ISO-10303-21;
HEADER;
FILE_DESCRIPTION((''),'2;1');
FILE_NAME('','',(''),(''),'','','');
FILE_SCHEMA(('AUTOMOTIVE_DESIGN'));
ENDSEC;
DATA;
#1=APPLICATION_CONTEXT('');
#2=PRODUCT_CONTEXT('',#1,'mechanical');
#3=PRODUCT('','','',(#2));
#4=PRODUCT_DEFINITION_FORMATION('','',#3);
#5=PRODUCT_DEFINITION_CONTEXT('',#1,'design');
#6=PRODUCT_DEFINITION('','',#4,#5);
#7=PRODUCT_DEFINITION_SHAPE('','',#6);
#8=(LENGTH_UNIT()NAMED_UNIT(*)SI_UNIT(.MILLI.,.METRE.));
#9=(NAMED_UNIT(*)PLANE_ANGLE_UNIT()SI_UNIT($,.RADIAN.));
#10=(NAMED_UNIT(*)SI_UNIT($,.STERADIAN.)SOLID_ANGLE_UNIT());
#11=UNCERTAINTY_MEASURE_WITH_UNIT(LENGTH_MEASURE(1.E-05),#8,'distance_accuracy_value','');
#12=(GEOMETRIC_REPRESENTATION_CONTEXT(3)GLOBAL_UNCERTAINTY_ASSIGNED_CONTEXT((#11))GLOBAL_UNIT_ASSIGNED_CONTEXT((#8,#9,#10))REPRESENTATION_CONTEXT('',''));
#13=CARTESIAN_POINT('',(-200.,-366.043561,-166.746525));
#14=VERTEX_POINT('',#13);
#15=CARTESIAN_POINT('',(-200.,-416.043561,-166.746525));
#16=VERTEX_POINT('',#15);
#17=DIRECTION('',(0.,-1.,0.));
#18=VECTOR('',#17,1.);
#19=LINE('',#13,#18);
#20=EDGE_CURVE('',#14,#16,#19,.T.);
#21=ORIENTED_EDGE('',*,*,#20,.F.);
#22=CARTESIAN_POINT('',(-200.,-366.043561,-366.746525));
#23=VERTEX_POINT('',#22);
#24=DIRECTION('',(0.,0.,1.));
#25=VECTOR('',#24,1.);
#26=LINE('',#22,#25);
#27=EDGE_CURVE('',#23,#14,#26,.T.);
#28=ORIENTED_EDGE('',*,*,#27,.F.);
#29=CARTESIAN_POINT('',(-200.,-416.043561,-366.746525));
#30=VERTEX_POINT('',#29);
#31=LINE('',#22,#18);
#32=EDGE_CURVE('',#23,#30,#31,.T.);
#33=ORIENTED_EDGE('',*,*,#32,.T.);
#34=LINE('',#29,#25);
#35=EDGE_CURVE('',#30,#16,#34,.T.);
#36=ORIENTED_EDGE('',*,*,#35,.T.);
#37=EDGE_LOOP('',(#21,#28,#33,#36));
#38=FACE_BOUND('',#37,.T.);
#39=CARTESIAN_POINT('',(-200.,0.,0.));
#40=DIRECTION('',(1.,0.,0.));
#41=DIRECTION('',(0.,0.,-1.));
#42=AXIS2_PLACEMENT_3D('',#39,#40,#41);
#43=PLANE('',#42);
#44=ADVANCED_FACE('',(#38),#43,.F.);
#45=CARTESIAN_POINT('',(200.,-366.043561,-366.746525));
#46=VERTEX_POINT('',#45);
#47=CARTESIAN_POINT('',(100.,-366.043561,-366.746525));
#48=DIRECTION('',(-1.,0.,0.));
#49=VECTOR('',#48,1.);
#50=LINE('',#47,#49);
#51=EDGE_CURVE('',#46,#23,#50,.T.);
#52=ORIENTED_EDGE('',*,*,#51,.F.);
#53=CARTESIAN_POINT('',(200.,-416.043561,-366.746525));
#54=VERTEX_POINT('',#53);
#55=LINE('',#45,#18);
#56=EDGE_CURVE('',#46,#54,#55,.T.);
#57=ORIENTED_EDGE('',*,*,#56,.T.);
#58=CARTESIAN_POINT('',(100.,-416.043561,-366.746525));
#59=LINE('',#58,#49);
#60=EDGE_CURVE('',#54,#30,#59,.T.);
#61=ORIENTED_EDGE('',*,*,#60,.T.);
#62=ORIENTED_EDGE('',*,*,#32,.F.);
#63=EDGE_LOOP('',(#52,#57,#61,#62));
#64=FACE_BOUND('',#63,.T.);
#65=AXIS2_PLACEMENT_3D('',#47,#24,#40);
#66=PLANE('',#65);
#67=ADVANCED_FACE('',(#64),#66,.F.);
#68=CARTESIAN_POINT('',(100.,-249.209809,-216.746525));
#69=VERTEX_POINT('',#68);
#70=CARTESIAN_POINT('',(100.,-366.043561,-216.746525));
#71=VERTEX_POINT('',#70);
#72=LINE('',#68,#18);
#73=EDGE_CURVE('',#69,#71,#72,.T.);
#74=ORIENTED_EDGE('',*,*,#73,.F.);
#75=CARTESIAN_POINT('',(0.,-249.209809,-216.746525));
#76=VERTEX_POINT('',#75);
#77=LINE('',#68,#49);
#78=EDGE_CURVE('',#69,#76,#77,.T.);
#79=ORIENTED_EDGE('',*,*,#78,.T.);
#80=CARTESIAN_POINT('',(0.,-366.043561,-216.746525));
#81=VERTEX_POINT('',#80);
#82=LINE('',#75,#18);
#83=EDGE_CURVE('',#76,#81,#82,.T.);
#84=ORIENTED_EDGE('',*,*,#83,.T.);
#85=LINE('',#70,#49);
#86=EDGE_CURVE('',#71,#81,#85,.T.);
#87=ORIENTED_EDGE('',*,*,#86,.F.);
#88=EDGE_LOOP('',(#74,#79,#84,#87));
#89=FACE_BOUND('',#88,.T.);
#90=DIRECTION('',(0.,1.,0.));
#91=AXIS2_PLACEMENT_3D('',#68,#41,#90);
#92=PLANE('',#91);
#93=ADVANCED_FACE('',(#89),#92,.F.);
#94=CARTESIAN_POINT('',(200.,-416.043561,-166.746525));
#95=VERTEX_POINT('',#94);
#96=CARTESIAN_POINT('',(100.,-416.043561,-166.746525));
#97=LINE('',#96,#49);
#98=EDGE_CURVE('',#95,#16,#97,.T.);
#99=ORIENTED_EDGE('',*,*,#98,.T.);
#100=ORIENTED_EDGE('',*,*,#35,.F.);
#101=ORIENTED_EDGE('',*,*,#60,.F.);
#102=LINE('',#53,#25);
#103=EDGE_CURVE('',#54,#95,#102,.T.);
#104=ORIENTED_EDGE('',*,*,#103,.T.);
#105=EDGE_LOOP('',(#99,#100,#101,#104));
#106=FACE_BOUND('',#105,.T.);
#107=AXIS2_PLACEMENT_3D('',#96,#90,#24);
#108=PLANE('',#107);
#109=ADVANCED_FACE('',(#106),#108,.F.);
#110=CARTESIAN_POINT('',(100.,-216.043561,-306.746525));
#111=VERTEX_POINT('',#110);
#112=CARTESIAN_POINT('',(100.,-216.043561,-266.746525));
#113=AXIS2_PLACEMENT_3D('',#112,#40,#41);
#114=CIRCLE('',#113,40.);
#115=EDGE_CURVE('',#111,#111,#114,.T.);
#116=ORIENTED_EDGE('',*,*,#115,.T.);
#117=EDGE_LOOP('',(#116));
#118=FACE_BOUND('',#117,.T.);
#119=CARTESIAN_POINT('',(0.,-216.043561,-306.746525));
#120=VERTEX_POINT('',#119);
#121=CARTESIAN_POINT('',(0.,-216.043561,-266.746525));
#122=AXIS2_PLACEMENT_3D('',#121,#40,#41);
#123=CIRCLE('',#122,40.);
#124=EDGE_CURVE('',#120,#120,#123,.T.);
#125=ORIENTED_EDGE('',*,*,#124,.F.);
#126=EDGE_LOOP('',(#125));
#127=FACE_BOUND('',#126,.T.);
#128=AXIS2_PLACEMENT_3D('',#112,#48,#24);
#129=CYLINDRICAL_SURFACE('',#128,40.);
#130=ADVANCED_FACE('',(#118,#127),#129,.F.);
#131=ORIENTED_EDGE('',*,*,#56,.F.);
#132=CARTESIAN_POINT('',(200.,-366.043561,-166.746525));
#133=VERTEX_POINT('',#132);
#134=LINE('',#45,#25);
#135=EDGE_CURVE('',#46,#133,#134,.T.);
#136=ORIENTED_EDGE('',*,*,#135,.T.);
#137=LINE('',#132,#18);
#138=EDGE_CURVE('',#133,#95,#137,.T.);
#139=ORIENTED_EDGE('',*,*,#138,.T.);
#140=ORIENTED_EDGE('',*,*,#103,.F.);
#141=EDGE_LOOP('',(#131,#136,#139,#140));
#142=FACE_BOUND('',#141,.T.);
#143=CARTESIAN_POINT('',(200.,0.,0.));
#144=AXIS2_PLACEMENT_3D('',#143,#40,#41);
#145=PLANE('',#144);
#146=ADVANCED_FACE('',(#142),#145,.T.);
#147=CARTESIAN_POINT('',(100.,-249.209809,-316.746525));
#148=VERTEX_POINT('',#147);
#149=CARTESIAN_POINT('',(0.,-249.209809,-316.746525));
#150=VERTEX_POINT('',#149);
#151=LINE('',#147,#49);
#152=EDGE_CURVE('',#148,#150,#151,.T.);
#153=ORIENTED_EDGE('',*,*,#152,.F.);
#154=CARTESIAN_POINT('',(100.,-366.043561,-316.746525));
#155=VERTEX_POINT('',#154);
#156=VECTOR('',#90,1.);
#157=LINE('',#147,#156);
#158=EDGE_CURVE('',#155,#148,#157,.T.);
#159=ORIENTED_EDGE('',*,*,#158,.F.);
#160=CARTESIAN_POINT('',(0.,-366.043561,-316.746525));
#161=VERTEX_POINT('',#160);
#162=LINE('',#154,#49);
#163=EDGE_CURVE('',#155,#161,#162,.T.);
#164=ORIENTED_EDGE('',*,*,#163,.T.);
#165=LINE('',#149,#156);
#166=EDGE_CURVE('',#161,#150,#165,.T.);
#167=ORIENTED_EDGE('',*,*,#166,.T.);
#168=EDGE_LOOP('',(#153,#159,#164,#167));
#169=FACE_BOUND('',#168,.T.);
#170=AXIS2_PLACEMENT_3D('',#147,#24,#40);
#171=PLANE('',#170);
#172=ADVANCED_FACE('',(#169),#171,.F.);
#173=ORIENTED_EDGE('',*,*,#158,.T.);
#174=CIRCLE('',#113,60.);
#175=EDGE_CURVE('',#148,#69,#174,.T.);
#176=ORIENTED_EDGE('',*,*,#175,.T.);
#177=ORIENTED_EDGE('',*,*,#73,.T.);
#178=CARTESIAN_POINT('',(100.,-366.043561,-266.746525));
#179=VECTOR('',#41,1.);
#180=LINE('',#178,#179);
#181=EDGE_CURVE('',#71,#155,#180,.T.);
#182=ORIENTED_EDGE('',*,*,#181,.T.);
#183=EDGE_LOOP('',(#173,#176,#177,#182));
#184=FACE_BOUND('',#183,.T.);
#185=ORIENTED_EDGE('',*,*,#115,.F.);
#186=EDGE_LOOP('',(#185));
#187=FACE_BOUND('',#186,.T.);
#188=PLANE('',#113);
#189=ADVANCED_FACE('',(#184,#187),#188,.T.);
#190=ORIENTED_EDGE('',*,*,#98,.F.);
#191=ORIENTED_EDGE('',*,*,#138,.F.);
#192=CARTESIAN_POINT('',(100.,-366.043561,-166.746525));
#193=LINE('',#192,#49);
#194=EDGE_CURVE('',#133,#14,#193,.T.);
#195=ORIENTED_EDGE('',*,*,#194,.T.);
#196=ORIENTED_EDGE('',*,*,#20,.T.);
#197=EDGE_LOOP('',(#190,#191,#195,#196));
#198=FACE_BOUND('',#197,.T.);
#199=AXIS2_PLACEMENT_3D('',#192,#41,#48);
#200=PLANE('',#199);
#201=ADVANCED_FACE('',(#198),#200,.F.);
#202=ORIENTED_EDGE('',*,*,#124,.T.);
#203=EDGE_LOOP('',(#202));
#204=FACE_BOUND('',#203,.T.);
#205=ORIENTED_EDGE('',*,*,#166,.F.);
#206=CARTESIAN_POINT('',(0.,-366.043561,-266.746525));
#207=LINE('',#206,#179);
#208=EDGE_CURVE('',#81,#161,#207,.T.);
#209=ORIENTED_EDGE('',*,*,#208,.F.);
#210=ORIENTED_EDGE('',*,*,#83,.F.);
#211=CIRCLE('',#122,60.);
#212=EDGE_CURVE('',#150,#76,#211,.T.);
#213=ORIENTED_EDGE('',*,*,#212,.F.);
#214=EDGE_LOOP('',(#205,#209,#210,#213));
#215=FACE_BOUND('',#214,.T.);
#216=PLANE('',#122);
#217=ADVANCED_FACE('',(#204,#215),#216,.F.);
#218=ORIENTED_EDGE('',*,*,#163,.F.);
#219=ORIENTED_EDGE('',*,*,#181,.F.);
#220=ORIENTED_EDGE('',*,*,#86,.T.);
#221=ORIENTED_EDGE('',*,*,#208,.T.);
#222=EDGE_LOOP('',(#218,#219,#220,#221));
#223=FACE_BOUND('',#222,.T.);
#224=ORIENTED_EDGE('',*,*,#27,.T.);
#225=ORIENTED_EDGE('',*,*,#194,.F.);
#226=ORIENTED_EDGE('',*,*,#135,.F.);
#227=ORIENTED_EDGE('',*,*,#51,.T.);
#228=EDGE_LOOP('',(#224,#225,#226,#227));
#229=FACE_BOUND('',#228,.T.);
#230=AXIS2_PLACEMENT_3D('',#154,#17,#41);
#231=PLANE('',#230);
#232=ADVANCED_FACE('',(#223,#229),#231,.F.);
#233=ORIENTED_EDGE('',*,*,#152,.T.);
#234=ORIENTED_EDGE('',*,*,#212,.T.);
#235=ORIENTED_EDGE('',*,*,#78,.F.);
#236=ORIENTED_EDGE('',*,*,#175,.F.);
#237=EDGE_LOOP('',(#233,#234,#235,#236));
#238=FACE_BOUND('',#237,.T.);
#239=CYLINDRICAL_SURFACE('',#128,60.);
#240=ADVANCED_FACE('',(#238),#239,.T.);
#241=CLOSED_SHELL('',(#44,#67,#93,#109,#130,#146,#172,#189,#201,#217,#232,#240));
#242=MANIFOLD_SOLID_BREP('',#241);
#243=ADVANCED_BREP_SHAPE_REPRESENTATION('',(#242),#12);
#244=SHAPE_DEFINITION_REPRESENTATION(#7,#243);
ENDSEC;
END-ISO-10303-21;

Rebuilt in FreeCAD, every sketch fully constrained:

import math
import FreeCAD as App
import Part
import Sketcher
from FreeCAD import Vector

doc = App.newDocument("Part")
body = doc.addObject("PartDesign::Body", "Body")

# Sketch on YZ plane
sketch1 = body.newObject("Sketcher::SketchObject", "Sketch")
sketch1.AttachmentSupport = (doc.getObject("YZ_Plane"), [""])
sketch1.MapMode = "FlatFace"
sketch1.addGeometry([
    Part.LineSegment(Vector(-366, -317, 0), Vector(-249, -317, 0)),  # 0
    Part.ArcOfCircle(Part.Circle(Vector(-216, -267, 0), Vector(0, 0, 1), 60), math.radians(-124), math.radians(124)),  # 1
    Part.LineSegment(Vector(-249, -217, 0), Vector(-366, -217, 0)),  # 2
    Part.LineSegment(Vector(-366, -217, 0), Vector(-366, -167, 0)),  # 3
    Part.LineSegment(Vector(-366, -167, 0), Vector(-416, -167, 0)),  # 4
    Part.LineSegment(Vector(-416, -167, 0), Vector(-416, -367, 0)),  # 5
    Part.LineSegment(Vector(-416, -367, 0), Vector(-366, -367, 0)),  # 6
    Part.LineSegment(Vector(-366, -367, 0), Vector(-366, -317, 0)),  # 7
    Part.Circle(Vector(-216, -267, 0), Vector(0, 0, 1), 40),  # 8
], False)
sketch1.addConstraint([
    Sketcher.Constraint("Coincident", 0, 2, 1, 1),
    Sketcher.Constraint("Coincident", 1, 2, 2, 1),
    Sketcher.Constraint("Coincident", 2, 2, 3, 1),
    Sketcher.Constraint("Coincident", 3, 2, 4, 1),
    Sketcher.Constraint("Coincident", 4, 2, 5, 1),
    Sketcher.Constraint("Coincident", 5, 2, 6, 1),
    Sketcher.Constraint("Coincident", 6, 2, 7, 1),
    Sketcher.Constraint("Coincident", 7, 2, 0, 1),
    Sketcher.Constraint("Horizontal", 0),
    Sketcher.Constraint("Horizontal", 2),
    Sketcher.Constraint("Vertical", 3),
    Sketcher.Constraint("Horizontal", 4),
    Sketcher.Constraint("Vertical", 5),
    Sketcher.Constraint("Horizontal", 6),
    Sketcher.Constraint("Vertical", 7),
    Sketcher.Constraint("Coincident", 8, 3, 1, 3),
    Sketcher.Constraint("Vertical", 0, 2, 1, 2),
    Sketcher.Constraint("Vertical", 3, 2, 6, 2),
    Sketcher.Constraint("Equal", 6, 3),
    Sketcher.Constraint("Equal", 3, 7),
    Sketcher.Constraint("Diameter", 8, 80.0),
    Sketcher.Constraint("Radius", 1, 60.0),
    Sketcher.Constraint("DistanceX", 4, 2, 4, 1, 50.0),
    Sketcher.Constraint("DistanceY", 5, 2, 5, 1, 200.0),
    Sketcher.Constraint("DistanceX", 2, 2, 1, 3, 150.0),
    Sketcher.Constraint("DistanceX", 1, 3, -1, 1, 216.043561),
    Sketcher.Constraint("DistanceY", 1, 3, -1, 1, 266.746525),
])
pad1 = body.newObject("PartDesign::Pad", "Pad")
pad1.Profile = sketch1
pad1.Length = 100

# Sketch on YZ plane
sketch2 = body.newObject("Sketcher::SketchObject", "Sketch001")
sketch2.AttachmentSupport = (doc.getObject("YZ_Plane"), [""])
sketch2.MapMode = "FlatFace"
sketch2.addGeometry([
    Part.LineSegment(Vector(-366, -167, 0), Vector(-416, -167, 0)),
    Part.LineSegment(Vector(-416, -167, 0), Vector(-416, -367, 0)),
    Part.LineSegment(Vector(-416, -367, 0), Vector(-366, -367, 0)),
    Part.LineSegment(Vector(-366, -367, 0), Vector(-366, -167, 0)),
], False)
sketch2.addConstraint([
    Sketcher.Constraint("Coincident", 0, 2, 1, 1),
    Sketcher.Constraint("Coincident", 1, 2, 2, 1),
    Sketcher.Constraint("Coincident", 2, 2, 3, 1),
    Sketcher.Constraint("Coincident", 3, 2, 0, 1),
    Sketcher.Constraint("Horizontal", 0),
    Sketcher.Constraint("Vertical", 1),
    Sketcher.Constraint("Horizontal", 2),
    Sketcher.Constraint("Vertical", 3),
    Sketcher.Constraint("DistanceX", 0, 2, 0, 1, 50.0),
    Sketcher.Constraint("DistanceY", 1, 2, 1, 1, 200.0),
    Sketcher.Constraint("DistanceX", 0, 2, -1, 1, 416.043561),
    Sketcher.Constraint("DistanceY", 0, 2, -1, 1, 166.746525),
])
pad2 = body.newObject("PartDesign::Pad", "Pad001")
pad2.Profile = sketch2
pad2.Length = 400
pad2.Midplane = True

doc.recompute()
